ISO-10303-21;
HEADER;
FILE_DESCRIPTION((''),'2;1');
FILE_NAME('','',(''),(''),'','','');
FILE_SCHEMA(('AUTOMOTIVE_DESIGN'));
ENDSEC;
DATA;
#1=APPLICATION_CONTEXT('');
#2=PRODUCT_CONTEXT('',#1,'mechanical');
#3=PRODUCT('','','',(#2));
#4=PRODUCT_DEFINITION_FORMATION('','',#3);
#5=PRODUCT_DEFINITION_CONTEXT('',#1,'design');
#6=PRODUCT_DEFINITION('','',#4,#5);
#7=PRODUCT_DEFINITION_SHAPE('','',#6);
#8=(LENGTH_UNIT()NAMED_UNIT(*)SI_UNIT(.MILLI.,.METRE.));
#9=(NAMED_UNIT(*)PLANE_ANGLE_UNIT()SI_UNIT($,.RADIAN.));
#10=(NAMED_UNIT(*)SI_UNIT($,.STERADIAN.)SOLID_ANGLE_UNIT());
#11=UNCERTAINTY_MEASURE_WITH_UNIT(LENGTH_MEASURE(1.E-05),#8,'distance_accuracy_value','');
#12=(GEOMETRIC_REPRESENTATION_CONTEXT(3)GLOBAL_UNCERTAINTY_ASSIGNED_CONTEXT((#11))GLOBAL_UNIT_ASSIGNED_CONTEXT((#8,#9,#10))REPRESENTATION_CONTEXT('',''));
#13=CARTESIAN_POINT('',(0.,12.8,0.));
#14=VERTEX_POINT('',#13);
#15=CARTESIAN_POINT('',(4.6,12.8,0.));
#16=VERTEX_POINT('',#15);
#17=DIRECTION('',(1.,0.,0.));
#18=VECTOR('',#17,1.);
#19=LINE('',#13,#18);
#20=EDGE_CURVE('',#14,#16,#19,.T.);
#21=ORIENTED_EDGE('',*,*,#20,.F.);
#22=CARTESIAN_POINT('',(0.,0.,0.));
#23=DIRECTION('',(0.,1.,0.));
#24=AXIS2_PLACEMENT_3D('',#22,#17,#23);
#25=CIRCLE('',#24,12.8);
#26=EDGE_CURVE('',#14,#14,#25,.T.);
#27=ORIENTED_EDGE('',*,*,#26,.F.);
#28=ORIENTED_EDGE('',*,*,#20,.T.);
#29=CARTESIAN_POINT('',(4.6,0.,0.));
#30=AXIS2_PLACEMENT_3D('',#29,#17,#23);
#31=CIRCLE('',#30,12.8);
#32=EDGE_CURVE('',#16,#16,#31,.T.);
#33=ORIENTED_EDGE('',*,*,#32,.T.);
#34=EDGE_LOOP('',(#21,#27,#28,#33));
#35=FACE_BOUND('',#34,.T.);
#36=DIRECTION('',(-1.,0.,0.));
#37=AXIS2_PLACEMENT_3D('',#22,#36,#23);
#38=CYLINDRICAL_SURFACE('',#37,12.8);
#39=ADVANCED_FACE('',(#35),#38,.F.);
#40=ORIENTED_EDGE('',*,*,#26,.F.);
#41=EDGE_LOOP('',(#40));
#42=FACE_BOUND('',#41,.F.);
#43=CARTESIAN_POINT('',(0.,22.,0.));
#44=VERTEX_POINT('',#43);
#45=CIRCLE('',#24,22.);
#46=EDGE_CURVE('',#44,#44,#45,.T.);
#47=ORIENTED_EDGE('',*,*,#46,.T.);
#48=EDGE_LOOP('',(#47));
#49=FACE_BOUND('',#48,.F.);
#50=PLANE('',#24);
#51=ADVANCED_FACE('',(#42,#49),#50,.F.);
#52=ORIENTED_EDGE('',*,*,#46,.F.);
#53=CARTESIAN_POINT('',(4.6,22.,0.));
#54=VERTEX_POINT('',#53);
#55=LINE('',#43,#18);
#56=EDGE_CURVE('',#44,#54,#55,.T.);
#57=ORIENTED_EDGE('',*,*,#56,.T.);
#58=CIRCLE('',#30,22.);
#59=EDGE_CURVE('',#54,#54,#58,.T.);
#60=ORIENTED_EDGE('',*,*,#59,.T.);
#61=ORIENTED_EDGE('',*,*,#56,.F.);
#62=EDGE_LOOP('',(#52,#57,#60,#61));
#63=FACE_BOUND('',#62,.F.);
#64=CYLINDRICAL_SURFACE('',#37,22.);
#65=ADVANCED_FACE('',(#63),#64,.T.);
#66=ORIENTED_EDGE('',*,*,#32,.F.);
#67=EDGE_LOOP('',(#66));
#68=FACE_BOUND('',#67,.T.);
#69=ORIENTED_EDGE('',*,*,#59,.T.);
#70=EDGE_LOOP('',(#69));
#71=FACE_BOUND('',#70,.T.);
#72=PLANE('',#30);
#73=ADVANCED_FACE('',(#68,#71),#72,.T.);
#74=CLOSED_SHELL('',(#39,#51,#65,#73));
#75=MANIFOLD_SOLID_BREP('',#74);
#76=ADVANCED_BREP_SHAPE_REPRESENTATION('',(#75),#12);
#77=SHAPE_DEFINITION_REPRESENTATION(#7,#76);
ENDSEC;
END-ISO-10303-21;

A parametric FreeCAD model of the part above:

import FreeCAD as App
import Part
import Sketcher

V = App.Vector

doc = App.newDocument("Part")
body = doc.addObject("PartDesign::Body", "Body")

# Sketch on YZ plane
sketch1 = doc.addObject("Sketcher::SketchObject", "Sketch")
body.addObject(sketch1)
sketch1.AttachmentSupport = (doc.YZ_Plane, [""])
sketch1.MapMode = "FlatFace"
sketch1.addGeometry([
    Part.Circle(V(0, 0, 0), V(0, 0, 1), 22),
    Part.Circle(V(0, 0, 0), V(0, 0, 1), 13),
], False)
sketch1.addConstraint([
    Sketcher.Constraint("Coincident", 0, 3, -1, 1),
    Sketcher.Constraint("Coincident", 1, 3, -1, 1),
    Sketcher.Constraint("Diameter", 0, 44.0),
    Sketcher.Constraint("Diameter", 1, 25.6),
])
pad1 = doc.addObject("PartDesign::Pad", "Pad")
body.addObject(pad1)
pad1.Profile = sketch1
pad1.Length = 4.6

doc.recompute()
